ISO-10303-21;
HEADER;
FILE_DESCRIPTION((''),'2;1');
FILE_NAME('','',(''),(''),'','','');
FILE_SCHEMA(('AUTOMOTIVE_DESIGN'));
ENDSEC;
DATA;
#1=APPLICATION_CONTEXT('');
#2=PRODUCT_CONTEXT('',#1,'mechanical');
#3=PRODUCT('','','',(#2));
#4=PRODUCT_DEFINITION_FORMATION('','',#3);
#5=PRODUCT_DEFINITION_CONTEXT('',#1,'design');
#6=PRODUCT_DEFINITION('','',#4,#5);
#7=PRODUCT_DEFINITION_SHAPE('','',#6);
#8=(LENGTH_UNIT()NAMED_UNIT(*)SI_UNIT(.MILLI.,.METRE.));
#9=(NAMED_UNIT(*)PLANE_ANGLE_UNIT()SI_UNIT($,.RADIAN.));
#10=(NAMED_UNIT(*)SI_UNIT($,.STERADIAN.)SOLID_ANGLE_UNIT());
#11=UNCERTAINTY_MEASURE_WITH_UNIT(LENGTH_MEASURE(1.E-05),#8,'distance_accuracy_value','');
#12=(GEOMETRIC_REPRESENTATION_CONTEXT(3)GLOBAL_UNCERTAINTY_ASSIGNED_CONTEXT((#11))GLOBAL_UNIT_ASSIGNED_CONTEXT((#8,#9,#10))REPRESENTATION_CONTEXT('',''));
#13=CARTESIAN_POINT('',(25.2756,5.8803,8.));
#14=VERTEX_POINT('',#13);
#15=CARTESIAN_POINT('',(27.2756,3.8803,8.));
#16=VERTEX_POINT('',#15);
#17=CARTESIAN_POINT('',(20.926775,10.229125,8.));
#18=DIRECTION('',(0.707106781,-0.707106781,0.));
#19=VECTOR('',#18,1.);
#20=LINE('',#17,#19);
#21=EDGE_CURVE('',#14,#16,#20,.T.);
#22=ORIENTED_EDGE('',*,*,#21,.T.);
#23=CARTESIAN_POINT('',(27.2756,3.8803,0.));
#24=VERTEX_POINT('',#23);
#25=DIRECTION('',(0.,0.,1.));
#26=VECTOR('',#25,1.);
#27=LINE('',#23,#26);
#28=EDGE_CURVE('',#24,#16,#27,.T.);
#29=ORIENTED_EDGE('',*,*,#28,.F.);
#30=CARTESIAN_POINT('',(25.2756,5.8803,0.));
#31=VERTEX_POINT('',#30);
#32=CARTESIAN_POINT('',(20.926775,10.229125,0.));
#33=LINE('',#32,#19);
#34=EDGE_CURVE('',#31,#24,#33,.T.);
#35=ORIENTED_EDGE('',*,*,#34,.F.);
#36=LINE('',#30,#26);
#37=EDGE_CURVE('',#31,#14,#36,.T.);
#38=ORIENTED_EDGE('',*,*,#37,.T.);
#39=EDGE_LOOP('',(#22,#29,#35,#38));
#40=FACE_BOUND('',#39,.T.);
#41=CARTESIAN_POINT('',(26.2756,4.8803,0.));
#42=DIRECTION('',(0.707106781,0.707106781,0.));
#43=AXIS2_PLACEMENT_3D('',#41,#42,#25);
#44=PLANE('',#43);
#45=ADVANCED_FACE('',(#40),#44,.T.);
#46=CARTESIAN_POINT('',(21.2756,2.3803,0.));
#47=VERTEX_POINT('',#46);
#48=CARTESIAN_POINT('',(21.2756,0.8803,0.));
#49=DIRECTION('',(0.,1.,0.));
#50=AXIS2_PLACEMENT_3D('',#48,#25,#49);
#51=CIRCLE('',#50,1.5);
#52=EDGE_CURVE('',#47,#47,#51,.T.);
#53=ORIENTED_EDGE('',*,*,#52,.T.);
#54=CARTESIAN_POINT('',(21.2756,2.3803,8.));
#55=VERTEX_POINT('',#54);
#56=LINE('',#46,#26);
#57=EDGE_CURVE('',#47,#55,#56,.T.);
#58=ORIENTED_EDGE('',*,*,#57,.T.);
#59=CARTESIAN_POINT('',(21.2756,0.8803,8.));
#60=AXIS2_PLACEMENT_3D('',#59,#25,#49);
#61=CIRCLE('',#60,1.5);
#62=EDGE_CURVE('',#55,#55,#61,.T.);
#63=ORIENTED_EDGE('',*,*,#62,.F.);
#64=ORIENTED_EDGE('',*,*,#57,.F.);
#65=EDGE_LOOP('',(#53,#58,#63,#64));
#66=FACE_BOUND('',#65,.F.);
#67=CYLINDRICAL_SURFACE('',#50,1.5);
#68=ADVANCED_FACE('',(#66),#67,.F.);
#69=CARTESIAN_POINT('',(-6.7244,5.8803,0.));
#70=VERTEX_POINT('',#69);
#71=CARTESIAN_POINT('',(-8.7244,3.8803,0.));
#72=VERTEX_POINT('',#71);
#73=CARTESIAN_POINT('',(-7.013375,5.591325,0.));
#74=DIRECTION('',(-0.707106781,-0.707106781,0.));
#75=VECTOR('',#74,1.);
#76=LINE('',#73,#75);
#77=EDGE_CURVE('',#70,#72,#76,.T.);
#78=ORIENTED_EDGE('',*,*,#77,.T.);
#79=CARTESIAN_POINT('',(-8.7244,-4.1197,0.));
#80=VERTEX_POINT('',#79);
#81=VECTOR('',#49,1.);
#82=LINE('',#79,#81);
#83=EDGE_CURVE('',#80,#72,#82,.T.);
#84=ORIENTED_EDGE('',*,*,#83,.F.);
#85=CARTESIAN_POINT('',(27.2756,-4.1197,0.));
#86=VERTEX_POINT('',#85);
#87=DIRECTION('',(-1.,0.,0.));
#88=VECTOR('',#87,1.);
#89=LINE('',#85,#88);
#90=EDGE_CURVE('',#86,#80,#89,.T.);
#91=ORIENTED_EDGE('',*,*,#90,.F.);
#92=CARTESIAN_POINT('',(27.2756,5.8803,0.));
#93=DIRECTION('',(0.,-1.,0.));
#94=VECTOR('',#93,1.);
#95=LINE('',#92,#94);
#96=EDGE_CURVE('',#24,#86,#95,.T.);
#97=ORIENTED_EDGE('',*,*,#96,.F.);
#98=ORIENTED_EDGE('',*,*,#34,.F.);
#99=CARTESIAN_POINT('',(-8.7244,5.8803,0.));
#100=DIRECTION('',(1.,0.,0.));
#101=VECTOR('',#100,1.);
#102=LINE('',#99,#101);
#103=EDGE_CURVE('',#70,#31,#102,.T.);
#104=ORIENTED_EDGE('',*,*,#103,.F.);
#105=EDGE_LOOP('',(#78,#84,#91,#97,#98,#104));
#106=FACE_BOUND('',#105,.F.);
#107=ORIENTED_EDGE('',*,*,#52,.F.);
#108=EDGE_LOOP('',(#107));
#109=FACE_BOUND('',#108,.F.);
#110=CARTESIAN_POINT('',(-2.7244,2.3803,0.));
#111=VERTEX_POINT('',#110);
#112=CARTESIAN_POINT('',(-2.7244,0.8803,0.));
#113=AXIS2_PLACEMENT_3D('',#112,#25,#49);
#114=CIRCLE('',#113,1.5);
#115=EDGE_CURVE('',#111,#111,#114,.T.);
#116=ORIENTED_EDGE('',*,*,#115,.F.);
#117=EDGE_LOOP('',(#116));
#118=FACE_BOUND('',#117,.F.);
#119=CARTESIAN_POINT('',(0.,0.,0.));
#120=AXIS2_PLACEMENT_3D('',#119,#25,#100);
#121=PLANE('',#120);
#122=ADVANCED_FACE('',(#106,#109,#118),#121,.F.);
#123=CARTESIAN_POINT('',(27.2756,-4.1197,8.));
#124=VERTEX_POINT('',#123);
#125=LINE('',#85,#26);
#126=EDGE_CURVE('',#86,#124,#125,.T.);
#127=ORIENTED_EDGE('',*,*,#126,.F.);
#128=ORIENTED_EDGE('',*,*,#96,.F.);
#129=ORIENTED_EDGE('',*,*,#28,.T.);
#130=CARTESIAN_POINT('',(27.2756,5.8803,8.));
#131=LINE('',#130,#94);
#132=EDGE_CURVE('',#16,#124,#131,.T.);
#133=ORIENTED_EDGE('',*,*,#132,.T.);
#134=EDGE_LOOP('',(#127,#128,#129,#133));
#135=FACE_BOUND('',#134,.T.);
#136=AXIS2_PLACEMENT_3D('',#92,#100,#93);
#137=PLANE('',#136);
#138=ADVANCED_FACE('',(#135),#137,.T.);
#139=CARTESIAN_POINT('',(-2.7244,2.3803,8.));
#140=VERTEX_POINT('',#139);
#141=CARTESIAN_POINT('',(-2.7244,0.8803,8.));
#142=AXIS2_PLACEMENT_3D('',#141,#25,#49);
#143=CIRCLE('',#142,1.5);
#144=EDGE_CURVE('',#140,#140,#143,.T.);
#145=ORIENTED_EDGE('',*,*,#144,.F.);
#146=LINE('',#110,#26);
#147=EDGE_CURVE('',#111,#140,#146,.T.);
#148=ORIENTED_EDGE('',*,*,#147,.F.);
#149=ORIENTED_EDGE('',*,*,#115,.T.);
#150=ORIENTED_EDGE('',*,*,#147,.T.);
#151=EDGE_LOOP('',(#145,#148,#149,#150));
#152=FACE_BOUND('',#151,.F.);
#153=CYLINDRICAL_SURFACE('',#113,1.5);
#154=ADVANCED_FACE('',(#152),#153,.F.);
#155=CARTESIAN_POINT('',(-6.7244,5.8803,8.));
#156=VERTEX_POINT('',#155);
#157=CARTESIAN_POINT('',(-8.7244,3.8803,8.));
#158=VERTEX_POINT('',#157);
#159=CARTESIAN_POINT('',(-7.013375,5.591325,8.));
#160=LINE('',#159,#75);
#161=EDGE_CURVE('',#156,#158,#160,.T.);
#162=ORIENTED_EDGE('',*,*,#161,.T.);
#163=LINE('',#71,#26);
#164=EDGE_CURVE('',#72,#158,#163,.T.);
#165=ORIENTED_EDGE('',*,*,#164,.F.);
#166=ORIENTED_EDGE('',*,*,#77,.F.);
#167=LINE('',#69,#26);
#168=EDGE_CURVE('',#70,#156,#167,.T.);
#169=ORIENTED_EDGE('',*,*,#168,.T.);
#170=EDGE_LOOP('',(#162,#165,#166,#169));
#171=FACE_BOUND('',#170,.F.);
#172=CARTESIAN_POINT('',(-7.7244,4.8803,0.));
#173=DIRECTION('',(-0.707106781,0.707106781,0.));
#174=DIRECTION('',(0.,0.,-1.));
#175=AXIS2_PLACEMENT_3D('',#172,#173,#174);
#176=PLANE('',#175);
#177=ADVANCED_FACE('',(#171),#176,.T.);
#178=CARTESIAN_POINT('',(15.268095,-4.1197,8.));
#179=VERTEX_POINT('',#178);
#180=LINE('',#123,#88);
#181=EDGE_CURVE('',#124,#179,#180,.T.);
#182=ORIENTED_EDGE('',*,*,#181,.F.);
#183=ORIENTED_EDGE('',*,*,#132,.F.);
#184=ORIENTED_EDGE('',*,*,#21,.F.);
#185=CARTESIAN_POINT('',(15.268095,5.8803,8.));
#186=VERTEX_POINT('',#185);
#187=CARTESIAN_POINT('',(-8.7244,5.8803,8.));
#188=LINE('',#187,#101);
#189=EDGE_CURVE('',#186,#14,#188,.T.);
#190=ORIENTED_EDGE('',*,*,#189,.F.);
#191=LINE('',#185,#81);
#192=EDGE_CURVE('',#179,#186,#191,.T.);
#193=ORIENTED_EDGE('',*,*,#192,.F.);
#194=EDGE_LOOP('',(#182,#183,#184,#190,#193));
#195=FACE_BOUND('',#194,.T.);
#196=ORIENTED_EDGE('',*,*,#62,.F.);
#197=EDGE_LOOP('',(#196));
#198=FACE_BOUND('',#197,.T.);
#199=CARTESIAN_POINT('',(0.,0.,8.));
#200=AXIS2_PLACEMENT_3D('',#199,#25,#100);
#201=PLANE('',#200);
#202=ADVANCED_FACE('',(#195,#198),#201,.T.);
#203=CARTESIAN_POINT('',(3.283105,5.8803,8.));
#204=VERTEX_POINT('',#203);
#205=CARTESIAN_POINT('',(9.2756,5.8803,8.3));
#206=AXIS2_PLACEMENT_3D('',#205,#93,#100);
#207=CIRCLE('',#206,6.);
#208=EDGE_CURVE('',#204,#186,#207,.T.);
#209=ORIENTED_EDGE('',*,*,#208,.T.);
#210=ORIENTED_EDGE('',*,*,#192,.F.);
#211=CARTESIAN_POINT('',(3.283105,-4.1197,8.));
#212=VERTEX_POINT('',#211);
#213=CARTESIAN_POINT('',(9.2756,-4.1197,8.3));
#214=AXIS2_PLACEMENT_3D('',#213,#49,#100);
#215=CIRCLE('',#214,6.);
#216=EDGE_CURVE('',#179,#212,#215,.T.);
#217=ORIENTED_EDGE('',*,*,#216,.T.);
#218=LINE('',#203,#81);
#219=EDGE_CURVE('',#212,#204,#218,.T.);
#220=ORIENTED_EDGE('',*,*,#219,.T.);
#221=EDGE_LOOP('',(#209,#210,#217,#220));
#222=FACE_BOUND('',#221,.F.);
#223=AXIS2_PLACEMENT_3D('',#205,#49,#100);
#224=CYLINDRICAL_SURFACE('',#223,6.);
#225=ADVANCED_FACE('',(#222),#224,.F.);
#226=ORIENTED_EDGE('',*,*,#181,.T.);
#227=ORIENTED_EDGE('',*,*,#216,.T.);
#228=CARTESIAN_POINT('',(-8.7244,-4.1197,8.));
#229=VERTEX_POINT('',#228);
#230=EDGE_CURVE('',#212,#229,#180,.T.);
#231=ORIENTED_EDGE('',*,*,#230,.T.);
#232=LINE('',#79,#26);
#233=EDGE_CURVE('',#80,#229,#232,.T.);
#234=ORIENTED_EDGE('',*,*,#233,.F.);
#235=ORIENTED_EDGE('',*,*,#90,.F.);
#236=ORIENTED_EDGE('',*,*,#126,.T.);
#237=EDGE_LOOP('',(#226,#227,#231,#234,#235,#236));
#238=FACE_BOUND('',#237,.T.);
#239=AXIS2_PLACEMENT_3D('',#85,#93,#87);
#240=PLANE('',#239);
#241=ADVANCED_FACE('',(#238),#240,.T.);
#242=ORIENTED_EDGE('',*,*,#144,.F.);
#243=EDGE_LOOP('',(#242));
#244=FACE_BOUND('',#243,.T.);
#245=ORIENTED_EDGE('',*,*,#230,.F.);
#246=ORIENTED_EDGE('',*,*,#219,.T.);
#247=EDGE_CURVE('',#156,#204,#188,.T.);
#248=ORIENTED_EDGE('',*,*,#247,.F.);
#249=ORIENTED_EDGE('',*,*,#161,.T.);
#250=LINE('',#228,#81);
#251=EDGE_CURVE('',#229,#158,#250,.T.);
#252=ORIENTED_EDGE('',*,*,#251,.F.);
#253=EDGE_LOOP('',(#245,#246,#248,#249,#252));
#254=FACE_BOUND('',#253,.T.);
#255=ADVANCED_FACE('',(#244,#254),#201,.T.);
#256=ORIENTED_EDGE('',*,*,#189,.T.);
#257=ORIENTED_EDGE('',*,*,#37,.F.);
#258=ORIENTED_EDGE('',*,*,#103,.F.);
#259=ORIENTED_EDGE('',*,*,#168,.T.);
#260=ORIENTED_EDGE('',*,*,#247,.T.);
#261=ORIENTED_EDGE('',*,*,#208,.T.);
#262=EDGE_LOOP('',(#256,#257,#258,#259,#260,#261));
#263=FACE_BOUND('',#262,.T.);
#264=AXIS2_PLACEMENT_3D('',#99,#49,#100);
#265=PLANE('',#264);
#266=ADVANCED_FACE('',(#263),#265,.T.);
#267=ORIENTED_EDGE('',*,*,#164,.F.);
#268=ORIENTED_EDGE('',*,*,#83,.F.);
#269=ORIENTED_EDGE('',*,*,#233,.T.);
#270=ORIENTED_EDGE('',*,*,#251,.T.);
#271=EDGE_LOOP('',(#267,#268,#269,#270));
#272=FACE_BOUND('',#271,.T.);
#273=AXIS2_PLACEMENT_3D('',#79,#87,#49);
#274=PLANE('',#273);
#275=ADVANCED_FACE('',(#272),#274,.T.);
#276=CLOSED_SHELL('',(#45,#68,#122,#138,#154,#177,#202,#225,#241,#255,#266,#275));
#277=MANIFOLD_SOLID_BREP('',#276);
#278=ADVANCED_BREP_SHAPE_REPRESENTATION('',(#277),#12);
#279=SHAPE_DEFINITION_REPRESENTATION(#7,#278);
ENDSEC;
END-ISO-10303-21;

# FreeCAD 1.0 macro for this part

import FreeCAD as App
import Part
import Sketcher
from FreeCAD import Vector
Q = App.Units.Quantity


def edges_at(feature, points):
    """Names of the edges that pass closest to the given points."""
    edges = feature.Shape.Edges
    near = lambda p: min(range(len(edges)), key=lambda i: edges[i].distToShape(Part.Vertex(*p))[0])
    return sorted({f"Edge{near(p) + 1}" for p in points})


def add_polygon(sketch, points):
    """Adds a closed chain of lines whose ends are joined by coincident constraints."""
    first, n = sketch.GeometryCount, len(points)
    for a, b in zip(points, points[1:] + points[:1]):
        sketch.addGeometry(Part.LineSegment(App.Vector(*a, 0), App.Vector(*b, 0)), False)
    for i in range(n):
        sketch.addConstraint(Sketcher.Constraint("Coincident", first + i, 2, first + (i + 1) % n, 1))

doc = App.newDocument("Part")
body = doc.addObject("PartDesign::Body", "Body")

# Sketch on XY plane
sketch1 = body.newObject("Sketcher::SketchObject", "Sketch")
sketch1.AttachmentSupport = (doc.getObject("XY_Plane"), [""])
sketch1.MapMode = "FlatFace"
add_polygon(sketch1, [(27, 6), (-9, 6), (-9, -4), (27, -4)])  # lines 0-3
sketch1.addConstraint([
    Sketcher.Constraint("Horizontal", 0),
    Sketcher.Constraint("Vertical", 1),
    Sketcher.Constraint("Horizontal", 2),
    Sketcher.Constraint("Vertical", 3),
    Sketcher.Constraint("DistanceX", 0, 2, 0, 1, Q("36 mm")),
    Sketcher.Constraint("DistanceY", 1, 2, 1, 1, Q("10 mm")),
    Sketcher.Constraint("DistanceX", 0, 2, -1, 1, Q("8.7244 mm")),
    Sketcher.Constraint("DistanceY", -1, 1, 0, 2, Q("5.8803 mm")),
])
pad1 = body.newObject("PartDesign::Pad", "Pad")
pad1.Profile = sketch1
pad1.Length = 8

# Sketch on XY plane
sketch2 = body.newObject("Sketcher::SketchObject", "Sketch001")
sketch2.AttachmentSupport = (doc.getObject("XY_Plane"), [""])
sketch2.MapMode = "FlatFace"
sketch2.addGeometry([
    Part.Circle(Vector(-2.7, 0.9, 0), Vector(0, 0, 1), 1.5),
    Part.Circle(Vector(21.3, 0.9, 0), Vector(0, 0, 1), 1.5),
], False)
sketch2.addConstraint([
    Sketcher.Constraint("Equal", 0, 1),
    Sketcher.Constraint("Horizontal", 0, 3, 1, 3),
    Sketcher.Constraint("Diameter", 0, Q("3 mm")),
    Sketcher.Constraint("DistanceX", 0, 3, 1, 3, Q("24 mm")),
    Sketcher.Constraint("DistanceX", 0, 3, -1, 1, Q("2.7244 mm")),
    Sketcher.Constraint("DistanceY", -1, 1, 0, 3, Q("0.8803 mm")),
])
doc.recompute()
hole = body.newObject("PartDesign::Hole", "Hole")
hole.Profile = sketch2
hole.ThreadType = "None"
hole.Diameter = 3
hole.DepthType = "ThroughAll"
hole.Reversed = True

# Sketch on XZ plane
sketch3 = body.newObject("Sketcher::SketchObject", "Sketch002")
sketch3.AttachmentSupport = (doc.getObject("XZ_Plane"), [""])
sketch3.MapMode = "FlatFace"
sketch3.AttachmentOffset = App.Placement(Vector(0, 0, -5.8803), App.Rotation())
sketch3.addGeometry(Part.Circle(Vector(9, 8, 0), Vector(0, 0, 1), 6), False)
sketch3.addConstraint([
    Sketcher.Constraint("Diameter", 0, Q("12 mm")),
    Sketcher.Constraint("DistanceY", -1, 1, 0, 3, Q("8.3 mm")),
    Sketcher.Constraint("DistanceX", -1, 1, 0, 3, Q("9.2756 mm")),
])
pocket1 = body.newObject("PartDesign::Pocket", "Pocket")
pocket1.Profile = sketch3
pocket1.Type = "ThroughAll"
pocket1.Reversed = True
doc.recompute()

chamfer = body.newObject("PartDesign::Chamfer", "Chamfer")
chamfer.Base = (pocket1, edges_at(pocket1, [(27.276, 5.88, 4), (-8.724, 5.88, 4)]))
chamfer.Size = 2

doc.recompute()
